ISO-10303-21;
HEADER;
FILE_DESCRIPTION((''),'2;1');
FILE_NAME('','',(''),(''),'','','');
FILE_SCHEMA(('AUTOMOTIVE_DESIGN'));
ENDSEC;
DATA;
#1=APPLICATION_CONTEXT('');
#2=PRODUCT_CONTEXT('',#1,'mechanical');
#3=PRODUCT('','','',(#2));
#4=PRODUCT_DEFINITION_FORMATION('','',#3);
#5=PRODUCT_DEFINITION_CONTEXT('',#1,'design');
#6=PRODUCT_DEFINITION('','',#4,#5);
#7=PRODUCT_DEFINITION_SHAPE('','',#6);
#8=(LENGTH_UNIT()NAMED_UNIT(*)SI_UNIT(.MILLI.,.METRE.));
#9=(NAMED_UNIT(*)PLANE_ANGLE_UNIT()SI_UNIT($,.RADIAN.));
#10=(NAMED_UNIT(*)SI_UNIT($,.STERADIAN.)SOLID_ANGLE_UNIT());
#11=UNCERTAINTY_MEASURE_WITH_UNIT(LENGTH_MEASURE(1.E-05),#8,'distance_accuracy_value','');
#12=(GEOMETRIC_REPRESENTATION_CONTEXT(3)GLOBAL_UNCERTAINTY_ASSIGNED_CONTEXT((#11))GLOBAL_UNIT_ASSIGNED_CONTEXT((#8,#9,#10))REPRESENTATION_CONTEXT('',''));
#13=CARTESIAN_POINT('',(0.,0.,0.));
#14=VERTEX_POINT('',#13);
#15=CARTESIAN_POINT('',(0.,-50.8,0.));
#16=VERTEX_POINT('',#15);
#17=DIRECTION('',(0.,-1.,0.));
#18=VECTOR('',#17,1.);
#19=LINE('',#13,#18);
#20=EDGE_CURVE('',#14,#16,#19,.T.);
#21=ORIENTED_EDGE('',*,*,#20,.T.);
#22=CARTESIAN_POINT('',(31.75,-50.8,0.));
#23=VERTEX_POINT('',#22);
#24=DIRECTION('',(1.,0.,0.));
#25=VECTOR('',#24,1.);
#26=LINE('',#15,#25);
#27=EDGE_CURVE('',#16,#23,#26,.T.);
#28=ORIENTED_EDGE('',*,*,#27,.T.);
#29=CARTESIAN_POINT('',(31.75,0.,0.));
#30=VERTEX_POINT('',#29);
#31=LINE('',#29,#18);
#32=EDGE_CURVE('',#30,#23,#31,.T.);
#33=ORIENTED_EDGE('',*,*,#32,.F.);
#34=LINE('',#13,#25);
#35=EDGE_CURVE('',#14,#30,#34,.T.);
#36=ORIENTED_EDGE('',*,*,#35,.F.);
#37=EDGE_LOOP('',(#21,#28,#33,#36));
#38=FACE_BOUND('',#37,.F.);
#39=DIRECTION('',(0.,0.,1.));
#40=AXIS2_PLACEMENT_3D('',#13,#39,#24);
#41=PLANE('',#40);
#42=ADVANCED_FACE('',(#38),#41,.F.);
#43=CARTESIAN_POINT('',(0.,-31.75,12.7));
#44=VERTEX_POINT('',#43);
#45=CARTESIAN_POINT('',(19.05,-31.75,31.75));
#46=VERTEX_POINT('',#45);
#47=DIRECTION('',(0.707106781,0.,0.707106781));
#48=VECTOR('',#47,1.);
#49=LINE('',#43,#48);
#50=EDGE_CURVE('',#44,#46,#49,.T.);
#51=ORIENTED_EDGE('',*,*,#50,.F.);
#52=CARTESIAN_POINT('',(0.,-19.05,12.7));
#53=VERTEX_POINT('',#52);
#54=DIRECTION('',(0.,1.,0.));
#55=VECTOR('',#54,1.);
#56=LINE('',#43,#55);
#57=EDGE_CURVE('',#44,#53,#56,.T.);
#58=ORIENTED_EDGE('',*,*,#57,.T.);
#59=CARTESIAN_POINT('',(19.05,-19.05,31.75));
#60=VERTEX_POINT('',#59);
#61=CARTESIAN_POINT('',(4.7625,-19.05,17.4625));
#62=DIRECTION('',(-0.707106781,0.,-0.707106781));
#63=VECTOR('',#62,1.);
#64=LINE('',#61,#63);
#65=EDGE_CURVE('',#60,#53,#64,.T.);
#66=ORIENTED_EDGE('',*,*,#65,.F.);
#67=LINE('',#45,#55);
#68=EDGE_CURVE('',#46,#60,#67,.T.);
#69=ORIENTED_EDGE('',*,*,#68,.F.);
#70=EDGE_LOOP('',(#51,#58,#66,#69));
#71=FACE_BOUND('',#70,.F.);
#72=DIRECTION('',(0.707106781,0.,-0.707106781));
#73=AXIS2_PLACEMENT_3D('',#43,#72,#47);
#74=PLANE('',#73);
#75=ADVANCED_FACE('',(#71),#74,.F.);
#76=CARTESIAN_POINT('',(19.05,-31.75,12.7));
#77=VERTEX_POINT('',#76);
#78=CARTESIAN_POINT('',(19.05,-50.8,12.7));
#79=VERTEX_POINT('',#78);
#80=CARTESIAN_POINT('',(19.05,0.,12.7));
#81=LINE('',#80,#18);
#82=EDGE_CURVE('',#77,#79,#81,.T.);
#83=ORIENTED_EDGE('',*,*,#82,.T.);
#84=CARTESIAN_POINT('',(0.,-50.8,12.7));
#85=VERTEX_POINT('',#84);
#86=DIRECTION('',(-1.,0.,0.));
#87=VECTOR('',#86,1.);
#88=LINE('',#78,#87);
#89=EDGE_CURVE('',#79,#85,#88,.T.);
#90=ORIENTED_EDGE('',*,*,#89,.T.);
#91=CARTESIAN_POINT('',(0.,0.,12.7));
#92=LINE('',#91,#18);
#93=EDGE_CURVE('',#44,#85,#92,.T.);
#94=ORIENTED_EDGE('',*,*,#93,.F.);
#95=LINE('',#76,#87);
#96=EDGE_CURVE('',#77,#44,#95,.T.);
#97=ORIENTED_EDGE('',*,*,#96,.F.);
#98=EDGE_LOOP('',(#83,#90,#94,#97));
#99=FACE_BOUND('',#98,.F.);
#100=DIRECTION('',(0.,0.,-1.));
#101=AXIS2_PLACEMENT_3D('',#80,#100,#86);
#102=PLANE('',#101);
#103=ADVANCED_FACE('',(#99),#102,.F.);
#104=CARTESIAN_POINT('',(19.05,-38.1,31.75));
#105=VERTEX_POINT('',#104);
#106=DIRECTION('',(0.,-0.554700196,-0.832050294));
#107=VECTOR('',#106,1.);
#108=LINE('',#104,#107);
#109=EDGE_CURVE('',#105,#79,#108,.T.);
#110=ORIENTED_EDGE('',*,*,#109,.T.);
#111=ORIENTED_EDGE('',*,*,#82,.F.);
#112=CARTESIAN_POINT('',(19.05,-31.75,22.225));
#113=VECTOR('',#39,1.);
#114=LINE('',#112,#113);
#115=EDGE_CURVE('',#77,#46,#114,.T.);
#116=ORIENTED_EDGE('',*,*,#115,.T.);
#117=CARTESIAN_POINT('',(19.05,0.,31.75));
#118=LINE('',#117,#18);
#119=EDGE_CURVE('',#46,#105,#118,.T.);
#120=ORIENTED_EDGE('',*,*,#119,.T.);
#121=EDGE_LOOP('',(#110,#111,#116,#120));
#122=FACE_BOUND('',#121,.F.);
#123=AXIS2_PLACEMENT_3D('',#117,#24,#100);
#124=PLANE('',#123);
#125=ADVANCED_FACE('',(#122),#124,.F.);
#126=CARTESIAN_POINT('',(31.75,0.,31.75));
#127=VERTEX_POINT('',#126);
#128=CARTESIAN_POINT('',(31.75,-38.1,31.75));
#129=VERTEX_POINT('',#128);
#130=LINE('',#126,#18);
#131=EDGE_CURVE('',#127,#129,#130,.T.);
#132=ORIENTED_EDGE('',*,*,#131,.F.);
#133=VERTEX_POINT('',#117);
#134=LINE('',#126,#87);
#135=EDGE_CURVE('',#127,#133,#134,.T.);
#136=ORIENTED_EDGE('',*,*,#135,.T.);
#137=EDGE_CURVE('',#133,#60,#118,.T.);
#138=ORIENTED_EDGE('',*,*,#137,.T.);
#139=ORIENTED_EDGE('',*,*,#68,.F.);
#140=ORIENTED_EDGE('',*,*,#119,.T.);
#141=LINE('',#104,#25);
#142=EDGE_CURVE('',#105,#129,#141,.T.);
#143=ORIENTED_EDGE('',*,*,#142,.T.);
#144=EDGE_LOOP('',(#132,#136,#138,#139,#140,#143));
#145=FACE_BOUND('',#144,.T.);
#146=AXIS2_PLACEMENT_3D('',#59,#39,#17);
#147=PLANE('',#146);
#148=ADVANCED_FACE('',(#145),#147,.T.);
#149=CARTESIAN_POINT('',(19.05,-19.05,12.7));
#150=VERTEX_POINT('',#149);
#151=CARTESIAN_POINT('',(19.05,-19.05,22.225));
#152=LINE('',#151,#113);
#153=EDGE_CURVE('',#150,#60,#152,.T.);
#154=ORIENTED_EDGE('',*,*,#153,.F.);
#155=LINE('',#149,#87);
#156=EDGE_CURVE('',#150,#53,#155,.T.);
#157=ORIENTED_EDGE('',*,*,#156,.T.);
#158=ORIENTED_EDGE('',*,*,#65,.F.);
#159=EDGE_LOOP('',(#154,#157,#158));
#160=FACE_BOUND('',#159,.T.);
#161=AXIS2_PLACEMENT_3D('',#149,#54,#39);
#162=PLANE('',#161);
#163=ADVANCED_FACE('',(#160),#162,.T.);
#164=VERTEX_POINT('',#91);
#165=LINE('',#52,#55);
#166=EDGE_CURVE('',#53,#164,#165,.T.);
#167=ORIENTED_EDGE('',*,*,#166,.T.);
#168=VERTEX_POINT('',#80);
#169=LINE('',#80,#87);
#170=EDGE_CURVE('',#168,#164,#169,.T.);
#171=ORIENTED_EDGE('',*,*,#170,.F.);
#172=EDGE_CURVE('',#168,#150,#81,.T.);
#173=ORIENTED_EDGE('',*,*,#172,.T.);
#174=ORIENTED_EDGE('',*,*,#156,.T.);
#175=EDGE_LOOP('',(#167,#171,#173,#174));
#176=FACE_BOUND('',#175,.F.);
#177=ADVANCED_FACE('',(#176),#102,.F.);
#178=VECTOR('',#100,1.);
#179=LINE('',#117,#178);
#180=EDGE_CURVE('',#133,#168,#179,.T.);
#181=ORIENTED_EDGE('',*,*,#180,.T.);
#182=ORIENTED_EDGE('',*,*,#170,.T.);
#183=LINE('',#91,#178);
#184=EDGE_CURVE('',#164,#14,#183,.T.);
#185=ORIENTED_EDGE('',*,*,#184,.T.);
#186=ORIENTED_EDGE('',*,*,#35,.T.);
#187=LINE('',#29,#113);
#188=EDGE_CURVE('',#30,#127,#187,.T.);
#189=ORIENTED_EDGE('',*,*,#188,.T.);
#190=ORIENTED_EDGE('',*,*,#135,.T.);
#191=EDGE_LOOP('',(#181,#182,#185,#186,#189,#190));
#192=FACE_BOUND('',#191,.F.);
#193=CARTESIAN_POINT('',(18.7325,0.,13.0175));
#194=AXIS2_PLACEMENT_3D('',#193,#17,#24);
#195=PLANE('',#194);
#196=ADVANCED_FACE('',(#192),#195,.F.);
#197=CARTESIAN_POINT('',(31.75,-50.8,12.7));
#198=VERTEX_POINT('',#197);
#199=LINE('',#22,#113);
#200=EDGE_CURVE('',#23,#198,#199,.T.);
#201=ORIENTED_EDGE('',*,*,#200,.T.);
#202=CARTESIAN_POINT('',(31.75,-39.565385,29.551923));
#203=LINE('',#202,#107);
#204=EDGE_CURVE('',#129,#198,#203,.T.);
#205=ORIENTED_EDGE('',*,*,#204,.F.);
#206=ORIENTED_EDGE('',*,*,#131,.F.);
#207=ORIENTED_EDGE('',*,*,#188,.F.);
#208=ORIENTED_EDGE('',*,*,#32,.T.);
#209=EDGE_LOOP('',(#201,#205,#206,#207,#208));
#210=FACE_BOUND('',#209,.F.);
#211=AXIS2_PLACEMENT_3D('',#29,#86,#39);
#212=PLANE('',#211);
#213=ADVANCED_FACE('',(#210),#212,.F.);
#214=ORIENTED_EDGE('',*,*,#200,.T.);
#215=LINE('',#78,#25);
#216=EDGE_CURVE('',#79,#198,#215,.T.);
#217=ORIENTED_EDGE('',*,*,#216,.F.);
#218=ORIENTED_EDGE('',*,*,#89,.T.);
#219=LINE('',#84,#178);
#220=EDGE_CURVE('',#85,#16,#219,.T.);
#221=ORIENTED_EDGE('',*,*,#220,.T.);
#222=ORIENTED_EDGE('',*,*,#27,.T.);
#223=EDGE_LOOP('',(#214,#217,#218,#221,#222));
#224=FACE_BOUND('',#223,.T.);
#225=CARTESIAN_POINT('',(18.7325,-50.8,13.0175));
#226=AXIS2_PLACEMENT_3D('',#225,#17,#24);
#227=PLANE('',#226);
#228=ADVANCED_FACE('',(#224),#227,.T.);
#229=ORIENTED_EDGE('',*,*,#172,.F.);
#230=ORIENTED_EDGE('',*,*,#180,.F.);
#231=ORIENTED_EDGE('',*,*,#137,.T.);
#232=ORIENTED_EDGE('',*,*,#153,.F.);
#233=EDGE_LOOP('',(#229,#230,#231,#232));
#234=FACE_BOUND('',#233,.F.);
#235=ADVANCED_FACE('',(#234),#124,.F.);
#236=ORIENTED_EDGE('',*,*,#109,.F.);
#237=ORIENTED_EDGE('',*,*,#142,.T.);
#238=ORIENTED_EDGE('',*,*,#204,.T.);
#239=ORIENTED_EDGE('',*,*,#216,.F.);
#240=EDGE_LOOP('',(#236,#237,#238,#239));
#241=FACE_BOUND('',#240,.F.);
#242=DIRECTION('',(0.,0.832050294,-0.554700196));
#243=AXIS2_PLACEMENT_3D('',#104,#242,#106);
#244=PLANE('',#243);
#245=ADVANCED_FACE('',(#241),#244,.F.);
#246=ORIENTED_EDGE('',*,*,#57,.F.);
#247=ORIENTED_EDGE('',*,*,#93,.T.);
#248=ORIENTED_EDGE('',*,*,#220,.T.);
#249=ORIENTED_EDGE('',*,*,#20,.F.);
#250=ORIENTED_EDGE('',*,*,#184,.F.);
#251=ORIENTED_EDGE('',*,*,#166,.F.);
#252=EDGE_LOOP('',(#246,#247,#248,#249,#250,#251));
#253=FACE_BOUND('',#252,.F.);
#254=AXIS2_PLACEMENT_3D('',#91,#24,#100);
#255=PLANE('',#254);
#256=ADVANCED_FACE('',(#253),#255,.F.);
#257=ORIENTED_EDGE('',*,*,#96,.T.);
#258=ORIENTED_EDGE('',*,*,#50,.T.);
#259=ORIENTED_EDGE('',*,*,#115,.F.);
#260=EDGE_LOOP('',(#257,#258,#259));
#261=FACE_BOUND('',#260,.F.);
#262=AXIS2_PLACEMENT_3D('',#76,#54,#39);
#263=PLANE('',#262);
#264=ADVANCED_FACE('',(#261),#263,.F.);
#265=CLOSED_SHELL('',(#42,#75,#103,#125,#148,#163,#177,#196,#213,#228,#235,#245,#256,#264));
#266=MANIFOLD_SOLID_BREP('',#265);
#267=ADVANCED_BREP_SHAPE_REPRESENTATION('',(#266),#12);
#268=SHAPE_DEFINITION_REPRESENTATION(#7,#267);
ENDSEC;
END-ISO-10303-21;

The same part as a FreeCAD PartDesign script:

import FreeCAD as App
import Part
import Sketcher
Q = App.Units.Quantity


def add_polygon(sketch, points):
    """Adds a closed chain of lines whose ends are joined by coincident constraints."""
    first, n = sketch.GeometryCount, len(points)
    for a, b in zip(points, points[1:] + points[:1]):
        sketch.addGeometry(Part.LineSegment(App.Vector(*a, 0), App.Vector(*b, 0)), False)
    for i in range(n):
        sketch.addConstraint(Sketcher.Constraint("Coincident", first + i, 2, first + (i + 1) % n, 1))

doc = App.newDocument("Part")
body = doc.addObject("PartDesign::Body", "Body")

# Sketch on XZ plane
sketch1 = body.newObject("Sketcher::SketchObject", "Sketch")
sketch1.AttachmentSupport = (doc.getObject("XZ_Plane"), [""])
sketch1.MapMode = "FlatFace"
add_polygon(sketch1, [(0, 13), (0, 0), (32, 0), (32, 32), (19, 32), (19, 13)])  # lines 0-5
sketch1.addConstraint(Sketcher.Constraint("Vertical", 0))
sketch1.addConstraint(Sketcher.Constraint("Horizontal", 1))
sketch1.addConstraint(Sketcher.Constraint("Vertical", 2))
sketch1.addConstraint(Sketcher.Constraint("Horizontal", 3))
sketch1.addConstraint(Sketcher.Constraint("Vertical", 4))
sketch1.addConstraint(Sketcher.Constraint("Horizontal", 5))
sketch1.addConstraint(Sketcher.Constraint("Coincident", 0, 2, -1, 1))
sketch1.addConstraint(Sketcher.Constraint("Equal", 3, 0))
sketch1.addConstraint(Sketcher.Constraint("Equal", 1, 2))
sketch1.addConstraint(Sketcher.Constraint("DistanceX", 3, 2, 3, 1, Q("0.5 in")))
sketch1.addConstraint(Sketcher.Constraint("DistanceX", 1, 1, 1, 2, Q("1.25 in")))
pad1 = body.newObject("PartDesign::Pad", "Pad")
pad1.Profile = sketch1
pad1.Length = Q("2 in")

# Sketch on YZ plane
sketch2 = body.newObject("Sketcher::SketchObject", "Sketch001")
sketch2.AttachmentSupport = (doc.getObject("YZ_Plane"), [""])
sketch2.MapMode = "FlatFace"
sketch2.AttachmentOffset = App.Placement(App.Vector(0, 0, 0.75 * 25.4), App.Rotation())
add_polygon(sketch2, [(-51, 32), (-38, 32), (-51, 13)])  # lines 0-2
sketch2.addConstraint(Sketcher.Constraint("Horizontal", 0))
sketch2.addConstraint(Sketcher.Constraint("Vertical", 2))
sketch2.addConstraint(Sketcher.Constraint("DistanceX", 0, 1, 0, 2, Q("0.5 in")))
sketch2.addConstraint(Sketcher.Constraint("DistanceX", 1, 2, -1, 1, Q("2 in")))
sketch2.addConstraint(Sketcher.Constraint("DistanceY", 2, 1, 2, 2, Q("0.75 in")))
sketch2.addConstraint(Sketcher.Constraint("DistanceY", -1, 1, 1, 2, Q("0.5 in")))
pocket1 = body.newObject("PartDesign::Pocket", "Pocket")
pocket1.Profile = sketch2
pocket1.Length = Q("1 in")
pocket1.Reversed = True

# Sketch on YZ plane
sketch3 = body.newObject("Sketcher::SketchObject", "Sketch002")
sketch3.AttachmentSupport = (doc.getObject("YZ_Plane"), [""])
sketch3.MapMode = "FlatFace"
sketch3.AttachmentOffset = App.Placement(App.Vector(0, 0, 0.75 * 25.4), App.Rotation())
add_polygon(sketch3, [(-19, 32), (-19, 13), (-32, 13), (-32, 32)])  # lines 0-3
sketch3.addConstraint(Sketcher.Constraint("Vertical", 0))
sketch3.addConstraint(Sketcher.Constraint("Horizontal", 1))
sketch3.addConstraint(Sketcher.Constraint("Vertical", 2))
sketch3.addConstraint(Sketcher.Constraint("Horizontal", 3))
sketch3.addConstraint(Sketcher.Constraint("DistanceX", 1, 2, 1, 1, Q("0.5 in")))
sketch3.addConstraint(Sketcher.Constraint("DistanceY", 0, 2, 0, 1, Q("0.75 in")))
sketch3.addConstraint(Sketcher.Constraint("DistanceY", -1, 1, 0, 2, Q("0.5 in")))
sketch3.addConstraint(Sketcher.Constraint("DistanceX", 0, 2, -1, 1, Q("0.75 in")))
pad2 = body.newObject("PartDesign::Pad", "Pad001")
pad2.Profile = sketch3
pad2.Length = Q("0.75 in")
pad2.Reversed = True

# Sketch on XZ plane
sketch4 = body.newObject("Sketcher::SketchObject", "Sketch003")
sketch4.AttachmentSupport = (doc.getObject("XZ_Plane"), [""])
sketch4.MapMode = "FlatFace"
sketch4.AttachmentOffset = App.Placement(App.Vector(0, 0, 1.25 * 25.4), App.Rotation())
add_polygon(sketch4, [(0, 32), (0, 13), (19, 32)])  # lines 0-2
sketch4.addConstraint(Sketcher.Constraint("Vertical", 0))
sketch4.addConstraint(Sketcher.Constraint("Horizontal", 2))
sketch4.addConstraint(Sketcher.Constraint("PointOnObject", 0, 2, -2))
sketch4.addConstraint(Sketcher.Constraint("Equal", 2, 0))
sketch4.addConstraint(Sketcher.Constraint("DistanceX", 2, 2, 2, 1, Q("0.75 in")))
sketch4.addConstraint(Sketcher.Constraint("DistanceY", -1, 1, 0, 2, Q("0.5 in")))
pocket2 = body.newObject("PartDesign::Pocket", "Pocket001")
pocket2.Profile = sketch4
pocket2.Length = Q("1 in")

doc.recompute()
